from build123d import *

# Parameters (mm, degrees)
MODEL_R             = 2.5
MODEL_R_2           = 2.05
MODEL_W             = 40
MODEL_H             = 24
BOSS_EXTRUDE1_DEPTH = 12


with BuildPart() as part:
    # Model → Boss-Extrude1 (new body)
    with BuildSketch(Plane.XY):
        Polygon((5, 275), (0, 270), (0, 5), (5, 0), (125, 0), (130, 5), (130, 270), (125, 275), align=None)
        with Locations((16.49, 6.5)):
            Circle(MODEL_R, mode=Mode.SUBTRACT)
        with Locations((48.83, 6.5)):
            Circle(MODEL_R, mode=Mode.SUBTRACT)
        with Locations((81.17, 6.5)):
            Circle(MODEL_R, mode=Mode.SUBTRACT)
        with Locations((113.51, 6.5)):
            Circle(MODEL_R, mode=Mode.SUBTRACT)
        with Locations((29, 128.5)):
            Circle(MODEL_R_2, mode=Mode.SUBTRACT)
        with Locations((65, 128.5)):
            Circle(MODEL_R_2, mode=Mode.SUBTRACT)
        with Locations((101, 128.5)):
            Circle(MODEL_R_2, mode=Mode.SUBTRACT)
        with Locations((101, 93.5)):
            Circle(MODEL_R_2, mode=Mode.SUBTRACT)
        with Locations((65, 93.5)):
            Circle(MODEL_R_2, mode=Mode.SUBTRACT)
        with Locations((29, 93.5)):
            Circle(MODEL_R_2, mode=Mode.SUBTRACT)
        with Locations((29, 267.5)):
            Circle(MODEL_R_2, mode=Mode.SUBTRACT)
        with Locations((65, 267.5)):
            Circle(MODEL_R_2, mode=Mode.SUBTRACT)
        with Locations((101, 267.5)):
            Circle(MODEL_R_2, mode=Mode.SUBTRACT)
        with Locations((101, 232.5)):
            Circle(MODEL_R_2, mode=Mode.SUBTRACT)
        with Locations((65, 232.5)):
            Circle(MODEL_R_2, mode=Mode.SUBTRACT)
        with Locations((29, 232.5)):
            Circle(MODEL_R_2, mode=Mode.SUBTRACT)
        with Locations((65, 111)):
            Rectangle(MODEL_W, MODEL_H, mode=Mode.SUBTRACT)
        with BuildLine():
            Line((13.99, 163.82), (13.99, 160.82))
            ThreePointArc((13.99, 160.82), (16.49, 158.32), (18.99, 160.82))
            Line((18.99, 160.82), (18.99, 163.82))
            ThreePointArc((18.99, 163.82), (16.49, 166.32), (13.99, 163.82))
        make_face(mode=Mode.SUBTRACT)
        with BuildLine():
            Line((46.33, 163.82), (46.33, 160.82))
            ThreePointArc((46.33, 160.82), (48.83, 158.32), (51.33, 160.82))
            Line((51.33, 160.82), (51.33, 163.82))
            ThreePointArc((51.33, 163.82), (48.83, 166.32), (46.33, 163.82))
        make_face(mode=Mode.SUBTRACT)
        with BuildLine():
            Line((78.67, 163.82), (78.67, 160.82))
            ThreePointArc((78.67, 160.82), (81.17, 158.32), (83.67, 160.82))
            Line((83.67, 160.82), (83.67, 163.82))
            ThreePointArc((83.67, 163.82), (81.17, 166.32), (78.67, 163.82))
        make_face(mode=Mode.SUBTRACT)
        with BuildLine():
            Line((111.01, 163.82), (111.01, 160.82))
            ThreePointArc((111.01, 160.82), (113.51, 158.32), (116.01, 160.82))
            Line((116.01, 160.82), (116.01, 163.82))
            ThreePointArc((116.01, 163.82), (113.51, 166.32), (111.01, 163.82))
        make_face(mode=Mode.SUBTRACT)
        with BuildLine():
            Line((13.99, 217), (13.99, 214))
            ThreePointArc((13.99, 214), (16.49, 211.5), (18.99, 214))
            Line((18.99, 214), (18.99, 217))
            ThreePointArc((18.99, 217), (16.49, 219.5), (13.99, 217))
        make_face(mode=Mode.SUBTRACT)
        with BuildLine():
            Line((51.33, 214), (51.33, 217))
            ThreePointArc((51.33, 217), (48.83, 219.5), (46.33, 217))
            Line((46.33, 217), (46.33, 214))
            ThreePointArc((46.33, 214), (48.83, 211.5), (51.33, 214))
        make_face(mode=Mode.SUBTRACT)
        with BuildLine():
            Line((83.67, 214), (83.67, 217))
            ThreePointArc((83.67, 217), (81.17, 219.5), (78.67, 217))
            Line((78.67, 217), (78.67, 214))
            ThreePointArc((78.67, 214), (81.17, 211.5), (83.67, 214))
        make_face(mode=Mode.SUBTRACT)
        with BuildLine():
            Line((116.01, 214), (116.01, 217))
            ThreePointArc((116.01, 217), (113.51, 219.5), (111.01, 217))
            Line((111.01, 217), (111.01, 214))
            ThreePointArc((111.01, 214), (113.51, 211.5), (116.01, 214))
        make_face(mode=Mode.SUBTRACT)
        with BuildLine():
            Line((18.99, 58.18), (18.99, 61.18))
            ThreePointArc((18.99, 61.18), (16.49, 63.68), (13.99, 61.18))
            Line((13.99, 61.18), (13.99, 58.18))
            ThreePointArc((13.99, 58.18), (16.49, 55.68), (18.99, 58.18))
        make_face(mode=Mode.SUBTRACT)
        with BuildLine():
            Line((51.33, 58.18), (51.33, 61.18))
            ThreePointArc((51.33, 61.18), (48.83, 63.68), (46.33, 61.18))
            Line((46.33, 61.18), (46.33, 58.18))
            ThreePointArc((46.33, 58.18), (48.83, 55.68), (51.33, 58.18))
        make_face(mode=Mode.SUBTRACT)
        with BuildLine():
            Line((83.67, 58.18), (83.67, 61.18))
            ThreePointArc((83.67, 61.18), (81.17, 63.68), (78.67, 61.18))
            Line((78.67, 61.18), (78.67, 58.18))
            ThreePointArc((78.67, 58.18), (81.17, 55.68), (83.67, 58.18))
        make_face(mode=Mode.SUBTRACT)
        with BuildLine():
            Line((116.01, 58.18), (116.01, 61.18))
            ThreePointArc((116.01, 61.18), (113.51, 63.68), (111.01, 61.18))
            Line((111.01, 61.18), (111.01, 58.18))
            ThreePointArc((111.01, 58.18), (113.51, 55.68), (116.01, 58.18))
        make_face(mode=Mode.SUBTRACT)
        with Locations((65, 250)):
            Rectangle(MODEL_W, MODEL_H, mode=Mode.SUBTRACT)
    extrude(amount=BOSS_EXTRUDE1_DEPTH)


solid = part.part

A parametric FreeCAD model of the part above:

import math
import FreeCAD as App
import Part
import Sketcher
from FreeCAD import Vector
Q = App.Units.Quantity


def add_polygon(sketch, points):
    """Adds a closed chain of lines whose ends are joined by coincident constraints."""
    first, n = sketch.GeometryCount, len(points)
    for a, b in zip(points, points[1:] + points[:1]):
        sketch.addGeometry(Part.LineSegment(App.Vector(*a, 0), App.Vector(*b, 0)), False)
    for i in range(n):
        sketch.addConstraint(Sketcher.Constraint("Coincident", first + i, 2, first + (i + 1) % n, 1))

doc = App.newDocument("Part")
body = doc.addObject("PartDesign::Body", "Body")

# Sketch on XY plane
sketch1 = doc.addObject("Sketcher::SketchObject", "Sketch")
body.addObject(sketch1)
sketch1.AttachmentSupport = (doc.XY_Plane, [""])
sketch1.MapMode = "FlatFace"
add_polygon(sketch1, [(5, 275), (0, 270), (0, 5), (5, 0), (125, 0), (130, 5), (130, 270), (125, 275)])  # lines 0-7
sketch1.addGeometry(Part.Circle(Vector(16.5, 6.5, 0), Vector(0, 0, 1), 2.5), False)  # 8
sketch1.addGeometry(Part.LineSegment(Vector(19, 61.2, 0), Vector(19, 58.2, 0)), False)  # 9
sketch1.addGeometry(Part.ArcOfCircle(Part.Circle(Vector(16.5, 58.2, 0), Vector(0, 0, 1), 2.5), math.radians(180), math.radians(360)), False)  # 10
sketch1.addGeometry(Part.LineSegment(Vector(14, 58.2, 0), Vector(14, 61.2, 0)), False)  # 11
sketch1.addGeometry(Part.ArcOfCircle(Part.Circle(Vector(16.5, 61.2, 0), Vector(0, 0, 1), 2.5), math.radians(0), math.radians(180)), False)  # 12
sketch1.addGeometry(Part.Circle(Vector(48.8, 6.5, 0), Vector(0, 0, 1), 2.5), False)  # 13
sketch1.addGeometry(Part.LineSegment(Vector(51.3, 61.2, 0), Vector(51.3, 58.2, 0)), False)  # 14
sketch1.addGeometry(Part.ArcOfCircle(Part.Circle(Vector(48.8, 58.2, 0), Vector(0, 0, 1), 2.5), math.radians(180), math.radians(360)), False)  # 15
sketch1.addGeometry(Part.LineSegment(Vector(46.3, 58.2, 0), Vector(46.3, 61.2, 0)), False)  # 16
sketch1.addGeometry(Part.ArcOfCircle(Part.Circle(Vector(48.8, 61.2, 0), Vector(0, 0, 1), 2.5), math.radians(0), math.radians(180)), False)  # 17
sketch1.addGeometry(Part.Circle(Vector(29, 93.5, 0), Vector(0, 0, 1), 2), False)  # 18
sketch1.addGeometry(Part.Circle(Vector(29, 128.5, 0), Vector(0, 0, 1), 2), False)  # 19
sketch1.addGeometry(Part.Circle(Vector(81.2, 6.5, 0), Vector(0, 0, 1), 2.5), False)  # 20
sketch1.addGeometry(Part.LineSegment(Vector(83.7, 61.2, 0), Vector(83.7, 58.2, 0)), False)  # 21
sketch1.addGeometry(Part.ArcOfCircle(Part.Circle(Vector(81.2, 58.2, 0), Vector(0, 0, 1), 2.5), math.radians(180), math.radians(360)), False)  # 22
sketch1.addGeometry(Part.LineSegment(Vector(78.7, 58.2, 0), Vector(78.7, 61.2, 0)), False)  # 23
sketch1.addGeometry(Part.ArcOfCircle(Part.Circle(Vector(81.2, 61.2, 0), Vector(0, 0, 1), 2.5), math.radians(0), math.radians(180)), False)  # 24
sketch1.addGeometry(Part.Circle(Vector(113.5, 6.5, 0), Vector(0, 0, 1), 2.5), False)  # 25
sketch1.addGeometry(Part.LineSegment(Vector(116, 61.2, 0), Vector(116, 58.2, 0)), False)  # 26
sketch1.addGeometry(Part.ArcOfCircle(Part.Circle(Vector(113.5, 58.2, 0), Vector(0, 0, 1), 2.5), math.radians(180), math.radians(360)), False)  # 27
sketch1.addGeometry(Part.LineSegment(Vector(111, 58.2, 0), Vector(111, 61.2, 0)), False)  # 28
sketch1.addGeometry(Part.ArcOfCircle(Part.Circle(Vector(113.5, 61.2, 0), Vector(0, 0, 1), 2.5), math.radians(0), math.radians(180)), False)  # 29
sketch1.addGeometry(Part.Circle(Vector(65, 93.5, 0), Vector(0, 0, 1), 2), False)  # 30
add_polygon(sketch1, [(85, 99), (45, 99), (45, 123), (85, 123)])  # lines 31-34
sketch1.addGeometry(Part.Circle(Vector(65, 128.5, 0), Vector(0, 0, 1), 2), False)  # 35
sketch1.addGeometry(Part.Circle(Vector(101, 93.5, 0), Vector(0, 0, 1), 2), False)  # 36
sketch1.addGeometry(Part.Circle(Vector(101, 128.5, 0), Vector(0, 0, 1), 2), False)  # 37
sketch1.addGeometry(Part.LineSegment(Vector(14, 160.8, 0), Vector(14, 163.8, 0)), False)  # 38
sketch1.addGeometry(Part.ArcOfCircle(Part.Circle(Vector(16.5, 163.8, 0), Vector(0, 0, 1), 2.5), math.radians(0), math.radians(180)), False)  # 39
sketch1.addGeometry(Part.LineSegment(Vector(19, 163.8, 0), Vector(19, 160.8, 0)), False)  # 40
sketch1.addGeometry(Part.ArcOfCircle(Part.Circle(Vector(16.5, 160.8, 0), Vector(0, 0, 1), 2.5), math.radians(180), math.radians(360)), False)  # 41
sketch1.addGeometry(Part.LineSegment(Vector(46.3, 160.8, 0), Vector(46.3, 163.8, 0)), False)  # 42
sketch1.addGeometry(Part.ArcOfCircle(Part.Circle(Vector(48.8, 163.8, 0), Vector(0, 0, 1), 2.5), math.radians(0), math.radians(180)), False)  # 43
sketch1.addGeometry(Part.LineSegment(Vector(51.3, 163.8, 0), Vector(51.3, 160.8, 0)), False)  # 44
sketch1.addGeometry(Part.ArcOfCircle(Part.Circle(Vector(48.8, 160.8, 0), Vector(0, 0, 1), 2.5), math.radians(180), math.radians(360)), False)  # 45
sketch1.addGeometry(Part.LineSegment(Vector(14, 214, 0), Vector(14, 217, 0)), False)  # 46
sketch1.addGeometry(Part.ArcOfCircle(Part.Circle(Vector(16.5, 217, 0), Vector(0, 0, 1), 2.5), math.radians(0), math.radians(180)), False)  # 47
sketch1.addGeometry(Part.LineSegment(Vector(19, 217, 0), Vector(19, 214, 0)), False)  # 48
sketch1.addGeometry(Part.ArcOfCircle(Part.Circle(Vector(16.5, 214, 0), Vector(0, 0, 1), 2.5), math.radians(180), math.radians(360)), False)  # 49
sketch1.addGeometry(Part.Circle(Vector(29, 232.5, 0), Vector(0, 0, 1), 2), False)  # 50
sketch1.addGeometry(Part.Circle(Vector(29, 267.5, 0), Vector(0, 0, 1), 2), False)  # 51
sketch1.addGeometry(Part.LineSegment(Vector(51.3, 217, 0), Vector(51.3, 214, 0)), False)  # 52
sketch1.addGeometry(Part.ArcOfCircle(Part.Circle(Vector(48.8, 214, 0), Vector(0, 0, 1), 2.5), math.radians(180), math.radians(360)), False)  # 53
sketch1.addGeometry(Part.LineSegment(Vector(46.3, 214, 0), Vector(46.3, 217, 0)), False)  # 54
sketch1.addGeometry(Part.ArcOfCircle(Part.Circle(Vector(48.8, 217, 0), Vector(0, 0, 1), 2.5), math.radians(0), math.radians(180)), False)  # 55
sketch1.addGeometry(Part.LineSegment(Vector(78.7, 160.8, 0), Vector(78.7, 163.8, 0)), False)  # 56
sketch1.addGeometry(Part.ArcOfCircle(Part.Circle(Vector(81.2, 163.8, 0), Vector(0, 0, 1), 2.5), math.radians(0), math.radians(180)), False)  # 57
sketch1.addGeometry(Part.LineSegment(Vector(83.7, 163.8, 0), Vector(83.7, 160.8, 0)), False)  # 58
sketch1.addGeometry(Part.ArcOfCircle(Part.Circle(Vector(81.2, 160.8, 0), Vector(0, 0, 1), 2.5), math.radians(180), math.radians(360)), False)  # 59
sketch1.addGeometry(Part.LineSegment(Vector(111, 160.8, 0), Vector(111, 163.8, 0)), False)  # 60
sketch1.addGeometry(Part.ArcOfCircle(Part.Circle(Vector(113.5, 163.8, 0), Vector(0, 0, 1), 2.5), math.radians(0), math.radians(180)), False)  # 61
sketch1.addGeometry(Part.LineSegment(Vector(116, 163.8, 0), Vector(116, 160.8, 0)), False)  # 62
sketch1.addGeometry(Part.ArcOfCircle(Part.Circle(Vector(113.5, 160.8, 0), Vector(0, 0, 1), 2.5), math.radians(180), math.radians(360)), False)  # 63
sketch1.addGeometry(Part.Circle(Vector(65, 232.5, 0), Vector(0, 0, 1), 2), False)  # 64
sketch1.addGeometry(Part.LineSegment(Vector(83.7, 217, 0), Vector(83.7, 214, 0)), False)  # 65
sketch1.addGeometry(Part.ArcOfCircle(Part.Circle(Vector(81.2, 214, 0), Vector(0, 0, 1), 2.5), math.radians(180), math.radians(360)), False)  # 66
sketch1.addGeometry(Part.LineSegment(Vector(78.7, 214, 0), Vector(78.7, 217, 0)), False)  # 67
sketch1.addGeometry(Part.ArcOfCircle(Part.Circle(Vector(81.2, 217, 0), Vector(0, 0, 1), 2.5), math.radians(0), math.radians(180)), False)  # 68
add_polygon(sketch1, [(85, 238), (45, 238), (45, 262), (85, 262)])  # lines 69-72
sketch1.addGeometry(Part.Circle(Vector(65, 267.5, 0), Vector(0, 0, 1), 2), False)  # 73
sketch1.addGeometry(Part.Circle(Vector(101, 232.5, 0), Vector(0, 0, 1), 2), False)  # 74
sketch1.addGeometry(Part.LineSegment(Vector(116, 217, 0), Vector(116, 214, 0)), False)  # 75
sketch1.addGeometry(Part.ArcOfCircle(Part.Circle(Vector(113.5, 214, 0), Vector(0, 0, 1), 2.5), math.radians(180), math.radians(360)), False)  # 76
sketch1.addGeometry(Part.LineSegment(Vector(111, 214, 0), Vector(111, 217, 0)), False)  # 77
sketch1.addGeometry(Part.ArcOfCircle(Part.Circle(Vector(113.5, 217, 0), Vector(0, 0, 1), 2.5), math.radians(0), math.radians(180)), False)  # 78
sketch1.addGeometry(Part.Circle(Vector(101, 267.5, 0), Vector(0, 0, 1), 2), False)  # 79
sketch1.addConstraint([
    Sketcher.Constraint("Tangent", 9, 2, 10, 2),
    Sketcher.Constraint("Tangent", 10, 1, 11, 1),
    Sketcher.Constraint("Tangent", 11, 2, 12, 2),
    Sketcher.Constraint("Tangent", 12, 1, 9, 1),
    Sketcher.Constraint("Tangent", 14, 2, 15, 2),
    Sketcher.Constraint("Tangent", 15, 1, 16, 1),
    Sketcher.Constraint("Tangent", 16, 2, 17, 2),
    Sketcher.Constraint("Tangent", 17, 1, 14, 1),
    Sketcher.Constraint("Tangent", 21, 2, 22, 2),
    Sketcher.Constraint("Tangent", 22, 1, 23, 1),
    Sketcher.Constraint("Tangent", 23, 2, 24, 2),
    Sketcher.Constraint("Tangent", 24, 1, 21, 1),
    Sketcher.Constraint("Tangent", 26, 2, 27, 2),
    Sketcher.Constraint("Tangent", 27, 1, 28, 1),
    Sketcher.Constraint("Tangent", 28, 2, 29, 2),
    Sketcher.Constraint("Tangent", 29, 1, 26, 1),
    Sketcher.Constraint("Tangent", 38, 2, 39, 2),
    Sketcher.Constraint("Tangent", 39, 1, 40, 1),
    Sketcher.Constraint("Tangent", 40, 2, 41, 2),
    Sketcher.Constraint("Tangent", 41, 1, 38, 1),
    Sketcher.Constraint("Tangent", 42, 2, 43, 2),
    Sketcher.Constraint("Tangent", 43, 1, 44, 1),
    Sketcher.Constraint("Tangent", 44, 2, 45, 2),
    Sketcher.Constraint("Tangent", 45, 1, 42, 1),
    Sketcher.Constraint("Tangent", 46, 2, 47, 2),
    Sketcher.Constraint("Tangent", 47, 1, 48, 1),
    Sketcher.Constraint("Tangent", 48, 2, 49, 2),
    Sketcher.Constraint("Tangent", 49, 1, 46, 1),
    Sketcher.Constraint("Tangent", 52, 2, 53, 2),
    Sketcher.Constraint("Tangent", 53, 1, 54, 1),
    Sketcher.Constraint("Tangent", 54, 2, 55, 2),
    Sketcher.Constraint("Tangent", 55, 1, 52, 1),
    Sketcher.Constraint("Tangent", 56, 2, 57, 2),
    Sketcher.Constraint("Tangent", 57, 1, 58, 1),
    Sketcher.Constraint("Tangent", 58, 2, 59, 2),
    Sketcher.Constraint("Tangent", 59, 1, 56, 1),
    Sketcher.Constraint("Tangent", 60, 2, 61, 2),
    Sketcher.Constraint("Tangent", 61, 1, 62, 1),
    Sketcher.Constraint("Tangent", 62, 2, 63, 2),
    Sketcher.Constraint("Tangent", 63, 1, 60, 1),
    Sketcher.Constraint("Tangent", 65, 2, 66, 2),
    Sketcher.Constraint("Tangent", 66, 1, 67, 1),
    Sketcher.Constraint("Tangent", 67, 2, 68, 2),
    Sketcher.Constraint("Tangent", 68, 1, 65, 1),
    Sketcher.Constraint("Tangent", 75, 2, 76, 2),
    Sketcher.Constraint("Tangent", 76, 1, 77, 1),
    Sketcher.Constraint("Tangent", 77, 2, 78, 2),
    Sketcher.Constraint("Tangent", 78, 1, 75, 1),
    Sketcher.Constraint("Vertical", 1),
    Sketcher.Constraint("Horizontal", 3),
    Sketcher.Constraint("Vertical", 5),
    Sketcher.Constraint("Horizontal", 7),
    Sketcher.Constraint("Vertical", 9),
    Sketcher.Constraint("Vertical", 11),
    Sketcher.Constraint("Vertical", 14),
    Sketcher.Constraint("Vertical", 16),
    Sketcher.Constraint("Vertical", 21),
    Sketcher.Constraint("Vertical", 23),
    Sketcher.Constraint("Vertical", 26),
    Sketcher.Constraint("Vertical", 28),
    Sketcher.Constraint("Horizontal", 31),
    Sketcher.Constraint("Vertical", 32),
    Sketcher.Constraint("Horizontal", 33),
    Sketcher.Constraint("Vertical", 34),
    Sketcher.Constraint("Vertical", 38),
    Sketcher.Constraint("Vertical", 40),
    Sketcher.Constraint("Vertical", 42),
    Sketcher.Constraint("Vertical", 44),
    Sketcher.Constraint("Vertical", 46),
    Sketcher.Constraint("Vertical", 48),
    Sketcher.Constraint("Vertical", 52),
    Sketcher.Constraint("Vertical", 54),
    Sketcher.Constraint("Vertical", 56),
    Sketcher.Constraint("Vertical", 58),
    Sketcher.Constraint("Vertical", 60),
    Sketcher.Constraint("Vertical", 62),
    Sketcher.Constraint("Vertical", 65),
    Sketcher.Constraint("Vertical", 67),
    Sketcher.Constraint("Horizontal", 69),
    Sketcher.Constraint("Vertical", 70),
    Sketcher.Constraint("Horizontal", 71),
    Sketcher.Constraint("Vertical", 72),
    Sketcher.Constraint("Vertical", 75),
    Sketcher.Constraint("Vertical", 77),
    Sketcher.Constraint("Equal", 8, 10),
    Sketcher.Constraint("Equal", 12, 13),
    Sketcher.Constraint("Equal", 13, 15),
    Sketcher.Constraint("Equal", 18, 19),
    Sketcher.Constraint("Equal", 17, 20),
    Sketcher.Constraint("Equal", 20, 22),
    Sketcher.Constraint("Equal", 24, 25),
    Sketcher.Constraint("Equal", 25, 27),
    Sketcher.Constraint("Equal", 19, 30),
    Sketcher.Constraint("Equal", 30, 35),
    Sketcher.Constraint("Equal", 35, 36),
    Sketcher.Constraint("Equal", 36, 37),
    Sketcher.Constraint("Equal", 29, 39),
    Sketcher.Constraint("Equal", 41, 43),
    Sketcher.Constraint("Equal", 45, 47),
    Sketcher.Constraint("Equal", 37, 50),
    Sketcher.Constraint("Equal", 50, 51),
    Sketcher.Constraint("Equal", 49, 53),
    Sketcher.Constraint("Equal", 55, 57),
    Sketcher.Constraint("Equal", 59, 61),
    Sketcher.Constraint("Equal", 51, 64),
    Sketcher.Constraint("Equal", 63, 66),
    Sketcher.Constraint("Equal", 64, 73),
    Sketcher.Constraint("Equal", 73, 74),
    Sketcher.Constraint("Equal", 68, 76),
    Sketcher.Constraint("Equal", 74, 79),
    Sketcher.Constraint("PointOnObject", 0, 2, -2),
    Sketcher.Constraint("PointOnObject", 2, 2, -1),
    Sketcher.Constraint("Perpendicular", 0, 2),
    Sketcher.Constraint("Perpendicular", 2, 4),
    Sketcher.Constraint("Perpendicular", 4, 6),
    Sketcher.Constraint("Horizontal", 8, 3, 13, 3),
    Sketcher.Constraint("Horizontal", 10, 3, 15, 3),
    Sketcher.Constraint("Horizontal", 12, 3, 17, 3),
    Sketcher.Constraint("Horizontal", 13, 3, 20, 3),
    Sketcher.Constraint("Horizontal", 15, 3, 22, 3),
    Sketcher.Constraint("Horizontal", 17, 3, 24, 3),
    Sketcher.Constraint("Horizontal", 20, 3, 25, 3),
    Sketcher.Constraint("Horizontal", 22, 3, 27, 3),
    Sketcher.Constraint("Horizontal", 24, 3, 29, 3),
    Sketcher.Constraint("Horizontal", 18, 3, 30, 3),
    Sketcher.Constraint("Horizontal", 19, 3, 35, 3),
    Sketcher.Constraint("Horizontal", 30, 3, 36, 3),
    Sketcher.Constraint("Horizontal", 35, 3, 37, 3),
    Sketcher.Constraint("Horizontal", 39, 3, 43, 3),
    Sketcher.Constraint("Horizontal", 41, 3, 45, 3),
    Sketcher.Constraint("Horizontal", 49, 3, 53, 3),
    Sketcher.Constraint("Horizontal", 47, 3, 55, 3),
    Sketcher.Constraint("Horizontal", 43, 3, 57, 3),
    Sketcher.Constraint("Horizontal", 45, 3, 59, 3),
    Sketcher.Constraint("Horizontal", 57, 3, 61, 3),
    Sketcher.Constraint("Horizontal", 59, 3, 63, 3),
    Sketcher.Constraint("Horizontal", 50, 3, 64, 3),
    Sketcher.Constraint("Horizontal", 53, 3, 66, 3),
    Sketcher.Constraint("Horizontal", 55, 3, 68, 3),
    Sketcher.Constraint("Horizontal", 51, 3, 73, 3),
    Sketcher.Constraint("Horizontal", 64, 3, 74, 3),
    Sketcher.Constraint("Horizontal", 66, 3, 76, 3),
    Sketcher.Constraint("Horizontal", 68, 3, 78, 3),
    Sketcher.Constraint("Horizontal", 73, 3, 79, 3),
    Sketcher.Constraint("Horizontal", 1, 2, 4, 2),
    Sketcher.Constraint("Horizontal", 0, 2, 5, 2),
    Sketcher.Constraint("Vertical", 8, 3, 10, 3),
    Sketcher.Constraint("Vertical", 13, 3, 15, 3),
    Sketcher.Constraint("Vertical", 18, 3, 19, 3),
    Sketcher.Constraint("Vertical", 20, 3, 22, 3),
    Sketcher.Constraint("Vertical", 25, 3, 27, 3),
    Sketcher.Constraint("Vertical", 30, 3, 35, 3),
    Sketcher.Constraint("Vertical", 36, 3, 37, 3),
    Sketcher.Constraint("Vertical", 12, 3, 39, 3),
    Sketcher.Constraint("Vertical", 17, 3, 43, 3),
    Sketcher.Constraint("Vertical", 41, 3, 47, 3),
    Sketcher.Constraint("Vertical", 19, 3, 50, 3),
    Sketcher.Constraint("Vertical", 50, 3, 51, 3),
    Sketcher.Constraint("Vertical", 45, 3, 53, 3),
    Sketcher.Constraint("Vertical", 24, 3, 57, 3),
    Sketcher.Constraint("Vertical", 29, 3, 61, 3),
    Sketcher.Constraint("Vertical", 35, 3, 64, 3),
    Sketcher.Constraint("Vertical", 59, 3, 66, 3),
    Sketcher.Constraint("Vertical", 64, 3, 73, 3),
    Sketcher.Constraint("Vertical", 37, 3, 74, 3),
    Sketcher.Constraint("Vertical", 63, 3, 76, 3),
    Sketcher.Constraint("Vertical", 74, 3, 79, 3),
    Sketcher.Constraint("Vertical", 3, 2, 6, 2),
    Sketcher.Constraint("Vertical", 2, 2, 7, 2),
    Sketcher.Constraint("Vertical", 32, 2, 69, 2),
    Sketcher.Constraint("Vertical", 34, 2, 71, 2),
    Sketcher.Constraint("Equal", 28, 38),
    Sketcher.Constraint("Equal", 44, 46),
    Sketcher.Constraint("Equal", 34, 70),
    Sketcher.Constraint("Diameter", 8, Q("5 mm")),
    Sketcher.Constraint("Diameter", 18, Q("4.1 mm")),
    Sketcher.Constraint("DistanceX", 3, 1, 3, 2, Q("120 mm")),
    Sketcher.Constraint("DistanceX", 31, 2, 31, 1, Q("40 mm")),
    Sketcher.Constraint("DistanceY", 1, 2, 1, 1, Q("265 mm")),
    Sketcher.Constraint("DistanceY", 9, 2, 9, 1, Q("3 mm")),
    Sketcher.Constraint("DistanceY", 32, 1, 32, 2, Q("24 mm")),
    Sketcher.Constraint("DistanceX", -1, 1, 18, 3, Q("29 mm")),
    Sketcher.Constraint("DistanceX", -1, 1, 30, 3, Q("65 mm")),
    Sketcher.Constraint("DistanceX", -1, 1, 36, 3, Q("101 mm")),
    Sketcher.Constraint("DistanceY", -1, 1, 47, 3, Q("217 mm")),
    Sketcher.Constraint("DistanceY", -1, 1, 0, 2, Q("270 mm")),
    Sketcher.Constraint("DistanceX", -1, 1, 31, 2, Q("45 mm")),
    Sketcher.Constraint("DistanceY", -1, 1, 31, 2, Q("99 mm")),
    Sketcher.Constraint("DistanceY", -1, 1, 69, 2, Q("238 mm")),
    Sketcher.Constraint("DistanceY", -1, 1, 8, 3, Q("6.5 mm")),
    Sketcher.Constraint("DistanceY", -1, 1, 18, 3, Q("93.5 mm")),
    Sketcher.Constraint("DistanceY", -1, 1, 19, 3, Q("128.5 mm")),
    Sketcher.Constraint("DistanceY", -1, 1, 50, 3, Q("232.5 mm")),
    Sketcher.Constraint("DistanceY", -1, 1, 51, 3, Q("267.5 mm")),
    Sketcher.Constraint("DistanceX", -1, 1, 8, 3, Q("16.49 mm")),
    Sketcher.Constraint("DistanceY", -1, 1, 10, 3, Q("58.18 mm")),
    Sketcher.Constraint("DistanceX", -1, 1, 13, 3, Q("48.83 mm")),
    Sketcher.Constraint("DistanceX", -1, 1, 20, 3, Q("81.17 mm")),
    Sketcher.Constraint("DistanceX", -1, 1, 25, 3, Q("113.51 mm")),
    Sketcher.Constraint("DistanceY", -1, 1, 39, 3, Q("163.82 mm")),
])
pad1 = doc.addObject("PartDesign::Pad", "Pad")
body.addObject(pad1)
pad1.Profile = sketch1
pad1.Length = 12

doc.recompute()
